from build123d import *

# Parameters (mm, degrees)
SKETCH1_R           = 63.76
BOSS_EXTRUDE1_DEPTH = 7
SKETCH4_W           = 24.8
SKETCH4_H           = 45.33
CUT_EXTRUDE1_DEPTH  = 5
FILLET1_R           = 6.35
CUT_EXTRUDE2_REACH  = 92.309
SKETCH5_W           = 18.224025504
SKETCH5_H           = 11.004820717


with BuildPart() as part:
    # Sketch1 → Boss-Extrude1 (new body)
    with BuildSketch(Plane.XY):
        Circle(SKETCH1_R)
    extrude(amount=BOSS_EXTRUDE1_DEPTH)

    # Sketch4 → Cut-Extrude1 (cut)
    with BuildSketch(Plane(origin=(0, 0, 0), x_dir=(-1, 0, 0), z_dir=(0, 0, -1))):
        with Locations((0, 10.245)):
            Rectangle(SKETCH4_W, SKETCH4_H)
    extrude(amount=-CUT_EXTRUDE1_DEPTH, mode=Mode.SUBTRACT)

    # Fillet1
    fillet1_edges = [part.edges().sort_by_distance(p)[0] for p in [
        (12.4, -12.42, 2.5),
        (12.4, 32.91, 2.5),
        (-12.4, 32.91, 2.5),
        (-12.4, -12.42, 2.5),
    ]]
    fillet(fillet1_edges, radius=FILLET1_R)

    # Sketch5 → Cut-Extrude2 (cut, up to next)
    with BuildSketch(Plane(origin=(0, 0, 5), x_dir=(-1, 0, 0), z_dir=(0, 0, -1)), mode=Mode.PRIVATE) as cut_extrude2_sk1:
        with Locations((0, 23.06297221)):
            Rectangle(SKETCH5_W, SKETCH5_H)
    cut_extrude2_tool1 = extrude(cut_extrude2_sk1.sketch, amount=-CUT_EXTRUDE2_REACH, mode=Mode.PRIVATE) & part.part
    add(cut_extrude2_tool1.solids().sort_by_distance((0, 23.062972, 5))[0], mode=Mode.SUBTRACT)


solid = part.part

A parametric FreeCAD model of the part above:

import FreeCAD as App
import Part
import Sketcher


def edges_at(feature, points):
    """Names of the edges that pass closest to the given points."""
    edges = feature.Shape.Edges
    near = lambda p: min(range(len(edges)), key=lambda i: edges[i].distToShape(Part.Vertex(*p))[0])
    return sorted({f"Edge{near(p) + 1}" for p in points})

doc = App.newDocument("Part")
params = doc.addObject("Spreadsheet::Sheet", "Params")
for row, (alias, value) in enumerate([
    ("sketch1_diameter", "127.52 mm"),
    ("pad1_length", "7 mm"),
    ("sketch2_width", "24.8 mm"),
    ("sketch2_height", "45.33 mm"),
    ("pocket1_length", "5 mm"),
    ("fillet_radius", "6.35 mm"),
], start=1):
    params.set(f"A{row}", alias)
    params.set(f"B{row}", "=" + value)
    params.setAlias(f"B{row}", alias)

body = doc.addObject("PartDesign::Body", "Body")

# Sketch on XY plane
sketch1 = body.newObject("Sketcher::SketchObject", "Sketch")
sketch1.AttachmentSupport = (doc.getObject("XY_Plane"), [""])
sketch1.MapMode = "FlatFace"
sketch1.addGeometry(Part.Circle(App.Vector(0, 0, 0), App.Vector(0, 0, 1), 63.76), False)
sketch1.addConstraint(Sketcher.Constraint("Coincident", 0, 3, -1, 1))
sketch1.addConstraint(Sketcher.Constraint("Diameter", 0, 127.52))
sketch1.setExpression("Constraints[1]", "Params.sketch1_diameter")
pad1 = body.newObject("PartDesign::Pad", "Pad")
pad1.Profile = sketch1
pad1.setExpression("Length", "Params.pad1_length")

# Sketch on XY plane
sketch2 = body.newObject("Sketcher::SketchObject", "Sketch001")
sketch2.AttachmentSupport = (doc.getObject("XY_Plane"), [""])
sketch2.MapMode = "FlatFace"
sketch2.addGeometry(Part.LineSegment(App.Vector(12.4, 32.91, 0), App.Vector(12.4, -12.42, 0)), False)
sketch2.addGeometry(Part.LineSegment(App.Vector(12.4, -12.42, 0), App.Vector(-12.4, -12.42, 0)), False)
sketch2.addGeometry(Part.LineSegment(App.Vector(-12.4, -12.42, 0), App.Vector(-12.4, 32.91, 0)), False)
sketch2.addGeometry(Part.LineSegment(App.Vector(-12.4, 32.91, 0), App.Vector(12.4, 32.91, 0)), False)
sketch2.addConstraint(Sketcher.Constraint("Coincident", 0, 2, 1, 1))
sketch2.addConstraint(Sketcher.Constraint("Coincident", 1, 2, 2, 1))
sketch2.addConstraint(Sketcher.Constraint("Coincident", 2, 2, 3, 1))
sketch2.addConstraint(Sketcher.Constraint("Coincident", 3, 2, 0, 1))
sketch2.addConstraint(Sketcher.Constraint("Vertical", 0))
sketch2.addConstraint(Sketcher.Constraint("Horizontal", 1))
sketch2.addConstraint(Sketcher.Constraint("Vertical", 2))
sketch2.addConstraint(Sketcher.Constraint("Horizontal", 3))
sketch2.addConstraint(Sketcher.Constraint("DistanceX", 1, 2, 1, 1, 24.8))
sketch2.addConstraint(Sketcher.Constraint("DistanceY", 0, 2, 0, 1, 45.33))
sketch2.addConstraint(Sketcher.Constraint("DistanceX", -1, 1, 0, 2, 12.4))
sketch2.addConstraint(Sketcher.Constraint("DistanceY", 0, 2, -1, 1, 12.42))
sketch2.setExpression("Constraints[8]", "Params.sketch2_width")
sketch2.setExpression("Constraints[9]", "Params.sketch2_height")
pocket1 = body.newObject("PartDesign::Pocket", "Pocket")
pocket1.Profile = sketch2
pocket1.setExpression("Length", "Params.pocket1_length")
pocket1.Reversed = True
doc.recompute()

fillet = body.newObject("PartDesign::Fillet", "Fillet")
fillet.Base = (pocket1, edges_at(pocket1, [
    (12.4, -12.42, 2.5),
    (12.4, 32.91, 2.5),
    (-12.4, 32.91, 2.5),
    (-12.4, -12.42, 2.5),
]))
fillet.setExpression("Radius", "Params.fillet_radius")

# Sketch on XY plane
sketch3 = body.newObject("Sketcher::SketchObject", "Sketch002")
sketch3.AttachmentSupport = (doc.getObject("XY_Plane"), [""])
sketch3.MapMode = "FlatFace"
sketch3.AttachmentOffset = App.Placement(App.Vector(0, 0, 5), App.Rotation())
sketch3.addGeometry(Part.LineSegment(App.Vector(9.112013, 28.565383, 0), App.Vector(9.112013, 17.560562, 0)), False)
sketch3.addGeometry(Part.LineSegment(App.Vector(9.112013, 17.560562, 0), App.Vector(-9.112013, 17.560562, 0)), False)
sketch3.addGeometry(Part.LineSegment(App.Vector(-9.112013, 17.560562, 0), App.Vector(-9.112013, 28.565383, 0)), False)
sketch3.addGeometry(Part.LineSegment(App.Vector(-9.112013, 28.565383, 0), App.Vector(9.112013, 28.565383, 0)), False)
sketch3.addConstraint(Sketcher.Constraint("Coincident", 0, 2, 1, 1))
sketch3.addConstraint(Sketcher.Constraint("Coincident", 1, 2, 2, 1))
sketch3.addConstraint(Sketcher.Constraint("Coincident", 2, 2, 3, 1))
sketch3.addConstraint(Sketcher.Constraint("Coincident", 3, 2, 0, 1))
sketch3.addConstraint(Sketcher.Constraint("Vertical", 0))
sketch3.addConstraint(Sketcher.Constraint("Horizontal", 1))
sketch3.addConstraint(Sketcher.Constraint("Vertical", 2))
sketch3.addConstraint(Sketcher.Constraint("Horizontal", 3))
sketch3.addConstraint(Sketcher.Constraint("DistanceY", 0, 2, 0, 1, 11.004821))
sketch3.addConstraint(Sketcher.Constraint("DistanceX", 1, 2, 1, 1, 18.224026))
sketch3.addConstraint(Sketcher.Constraint("DistanceY", -1, 1, 0, 2, 17.560562))
sketch3.addConstraint(Sketcher.Constraint("DistanceX", -1, 1, 0, 2, 9.112013))
pocket2 = body.newObject("PartDesign::Pocket", "Pocket001")
pocket2.Profile = sketch3
pocket2.Type = "UpToFirst"
pocket2.Reversed = True

doc.recompute()
